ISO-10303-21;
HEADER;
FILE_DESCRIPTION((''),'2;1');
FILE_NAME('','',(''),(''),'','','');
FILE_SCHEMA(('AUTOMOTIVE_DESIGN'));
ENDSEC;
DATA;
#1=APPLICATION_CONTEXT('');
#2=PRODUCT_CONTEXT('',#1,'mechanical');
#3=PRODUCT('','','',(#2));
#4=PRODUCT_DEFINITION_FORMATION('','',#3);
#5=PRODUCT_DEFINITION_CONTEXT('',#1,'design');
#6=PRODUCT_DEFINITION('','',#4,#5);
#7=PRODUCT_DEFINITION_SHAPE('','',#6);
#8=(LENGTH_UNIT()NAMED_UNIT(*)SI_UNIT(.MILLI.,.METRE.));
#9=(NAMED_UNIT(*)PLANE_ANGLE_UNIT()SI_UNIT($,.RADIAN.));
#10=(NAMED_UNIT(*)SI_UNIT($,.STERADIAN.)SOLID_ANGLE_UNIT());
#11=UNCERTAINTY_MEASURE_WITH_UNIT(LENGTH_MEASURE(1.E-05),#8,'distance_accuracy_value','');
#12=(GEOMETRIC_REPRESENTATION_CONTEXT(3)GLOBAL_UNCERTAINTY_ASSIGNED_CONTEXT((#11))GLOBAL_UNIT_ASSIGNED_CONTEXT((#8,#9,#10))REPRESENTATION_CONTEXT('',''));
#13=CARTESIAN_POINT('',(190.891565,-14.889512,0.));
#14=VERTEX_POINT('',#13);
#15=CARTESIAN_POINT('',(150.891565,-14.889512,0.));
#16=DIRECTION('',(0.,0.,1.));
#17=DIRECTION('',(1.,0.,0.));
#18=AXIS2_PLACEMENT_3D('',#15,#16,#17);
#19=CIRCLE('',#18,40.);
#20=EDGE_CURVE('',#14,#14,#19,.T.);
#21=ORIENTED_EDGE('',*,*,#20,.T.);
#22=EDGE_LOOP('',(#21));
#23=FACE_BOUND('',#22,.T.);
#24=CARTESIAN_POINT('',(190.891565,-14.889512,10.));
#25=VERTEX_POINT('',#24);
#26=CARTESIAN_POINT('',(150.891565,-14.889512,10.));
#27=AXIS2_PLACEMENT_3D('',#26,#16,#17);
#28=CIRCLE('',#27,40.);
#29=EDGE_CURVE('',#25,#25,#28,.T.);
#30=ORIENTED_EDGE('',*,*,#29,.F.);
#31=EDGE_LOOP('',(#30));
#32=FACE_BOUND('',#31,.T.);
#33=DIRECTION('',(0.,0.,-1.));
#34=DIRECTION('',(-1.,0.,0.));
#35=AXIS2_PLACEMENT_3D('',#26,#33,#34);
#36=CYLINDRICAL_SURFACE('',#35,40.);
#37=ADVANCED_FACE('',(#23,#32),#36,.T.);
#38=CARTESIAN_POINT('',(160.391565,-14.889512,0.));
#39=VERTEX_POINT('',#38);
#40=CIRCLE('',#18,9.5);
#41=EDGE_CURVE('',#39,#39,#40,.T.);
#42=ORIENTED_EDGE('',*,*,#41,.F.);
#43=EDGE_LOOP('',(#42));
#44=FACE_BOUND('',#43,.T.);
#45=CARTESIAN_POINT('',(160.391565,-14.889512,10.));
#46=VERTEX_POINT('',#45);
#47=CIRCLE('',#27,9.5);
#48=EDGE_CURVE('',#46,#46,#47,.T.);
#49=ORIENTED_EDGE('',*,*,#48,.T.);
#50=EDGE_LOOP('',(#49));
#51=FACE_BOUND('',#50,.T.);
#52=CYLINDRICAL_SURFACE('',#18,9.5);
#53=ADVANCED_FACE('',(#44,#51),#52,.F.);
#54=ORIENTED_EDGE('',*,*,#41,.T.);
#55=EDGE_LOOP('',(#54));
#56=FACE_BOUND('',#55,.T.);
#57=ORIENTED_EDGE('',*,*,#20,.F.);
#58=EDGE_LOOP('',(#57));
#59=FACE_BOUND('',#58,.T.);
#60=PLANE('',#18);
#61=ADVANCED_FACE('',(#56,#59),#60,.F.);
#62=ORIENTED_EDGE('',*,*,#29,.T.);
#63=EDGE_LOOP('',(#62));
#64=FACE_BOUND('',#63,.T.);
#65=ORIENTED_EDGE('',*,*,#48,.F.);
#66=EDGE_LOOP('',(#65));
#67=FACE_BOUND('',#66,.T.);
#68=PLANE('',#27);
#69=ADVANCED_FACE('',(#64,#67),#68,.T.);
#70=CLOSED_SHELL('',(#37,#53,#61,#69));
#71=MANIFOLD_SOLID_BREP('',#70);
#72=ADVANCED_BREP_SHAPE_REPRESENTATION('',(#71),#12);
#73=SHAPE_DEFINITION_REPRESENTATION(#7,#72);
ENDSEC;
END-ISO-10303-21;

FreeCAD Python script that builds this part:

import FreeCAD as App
import Part
import Sketcher
Q = App.Units.Quantity

doc = App.newDocument("Part")
body = doc.addObject("PartDesign::Body", "Body")

sketch1 = doc.addObject("Sketcher::SketchObject", "Sketch")
body.addObject(sketch1)
sketch1.AttachmentSupport = (doc.XY_Plane, [""])
sketch1.MapMode = "FlatFace"
sketch1.addGeometry(Part.Circle(App.Vector(151, -15, 0), App.Vector(0, 0, 1), 40), False)
sketch1.addConstraint(Sketcher.Constraint("Diameter", 0, Q("80 mm")))
sketch1.addConstraint(Sketcher.Constraint("DistanceX", -1, 1, 0, 3, Q("150.891565 mm")))
sketch1.addConstraint(Sketcher.Constraint("DistanceY", 0, 3, -1, 1, Q("14.889512 mm")))
pad1 = doc.addObject("PartDesign::Pad", "Pad")
body.addObject(pad1)
pad1.Profile = sketch1
pad1.Length = 10

sketch2 = doc.addObject("Sketcher::SketchObject", "Sketch001")
body.addObject(sketch2)
sketch2.AttachmentSupport = (doc.XY_Plane, [""])
sketch2.MapMode = "FlatFace"
sketch2.AttachmentOffset = App.Placement(App.Vector(0, 0, 10), App.Rotation())
sketch2.addGeometry(Part.Circle(App.Vector(151, -15, 0), App.Vector(0, 0, 1), 10), False)
sketch2.addConstraint(Sketcher.Constraint("Diameter", 0, Q("19 mm")))
sketch2.addConstraint(Sketcher.Constraint("DistanceX", -1, 1, 0, 3, Q("150.891565 mm")))
sketch2.addConstraint(Sketcher.Constraint("DistanceY", 0, 3, -1, 1, Q("14.889512 mm")))
pocket1 = doc.addObject("PartDesign::Pocket", "Pocket")
body.addObject(pocket1)
pocket1.Profile = sketch2
pocket1.Length = 10

doc.recompute()
